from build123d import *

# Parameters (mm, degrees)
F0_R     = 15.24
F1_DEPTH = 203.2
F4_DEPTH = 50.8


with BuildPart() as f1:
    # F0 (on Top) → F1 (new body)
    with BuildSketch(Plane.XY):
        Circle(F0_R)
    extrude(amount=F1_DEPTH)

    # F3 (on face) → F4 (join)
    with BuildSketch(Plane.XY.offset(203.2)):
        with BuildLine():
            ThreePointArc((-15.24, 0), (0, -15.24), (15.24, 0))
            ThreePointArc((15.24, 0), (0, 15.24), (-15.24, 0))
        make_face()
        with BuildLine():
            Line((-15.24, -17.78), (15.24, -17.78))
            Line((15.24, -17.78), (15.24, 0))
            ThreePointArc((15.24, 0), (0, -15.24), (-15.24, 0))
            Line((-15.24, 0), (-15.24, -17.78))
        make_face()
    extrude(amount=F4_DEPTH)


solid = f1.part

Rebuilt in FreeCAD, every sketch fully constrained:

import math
import FreeCAD as App
import Part
import Sketcher
from FreeCAD import Vector
Q = App.Units.Quantity

doc = App.newDocument("Part")
params = doc.addObject("Spreadsheet::Sheet", "Params")
for row, (alias, value) in enumerate([
    ("sketch1_diameter", "1.2 in"),
    ("pad1_length", "8 in"),
    ("sketch2_radius", "0.6 in"),
    ("sketch2_height", "0.7 in"),
    ("pad2_length", "2 in"),
], start=1):
    params.set(f"A{row}", alias)
    params.set(f"B{row}", "=" + value)
    params.setAlias(f"B{row}", alias)

body = doc.addObject("PartDesign::Body", "Body")

# Sketch on XY plane
sketch1 = doc.addObject("Sketcher::SketchObject", "Sketch")
body.addObject(sketch1)
sketch1.AttachmentSupport = (doc.XY_Plane, [""])
sketch1.MapMode = "FlatFace"
sketch1.addGeometry(Part.Circle(Vector(0, 0, 0), Vector(0, 0, 1), 15), False)
sketch1.addConstraint([
    Sketcher.Constraint("Coincident", 0, 3, -1, 1),
    Sketcher.Constraint("Diameter", 0, Q("1.2 in")),
])
sketch1.setExpression("Constraints[1]", "Params.sketch1_diameter")
pad1 = doc.addObject("PartDesign::Pad", "Pad")
body.addObject(pad1)
pad1.Profile = sketch1
pad1.setExpression("Length", "Params.pad1_length")

# Sketch on XY plane
sketch2 = doc.addObject("Sketcher::SketchObject", "Sketch001")
body.addObject(sketch2)
sketch2.AttachmentSupport = (doc.XY_Plane, [""])
sketch2.MapMode = "FlatFace"
sketch2.AttachmentOffset = App.Placement(Vector(0, 0, 8 * 25.4), App.Rotation())
sketch2.addGeometry([
    Part.ArcOfCircle(Part.Circle(Vector(0, 0, 0), Vector(0, 0, 1), 15), math.radians(0), math.radians(180)),
    Part.LineSegment(Vector(-15, 0, 0), Vector(-15, -18, 0)),
    Part.LineSegment(Vector(-15, -18, 0), Vector(15, -18, 0)),
    Part.LineSegment(Vector(15, -18, 0), Vector(15, 0, 0)),
], False)
sketch2.addConstraint([
    Sketcher.Constraint("Tangent", 0, 2, 1, 1),
    Sketcher.Constraint("Coincident", 1, 2, 2, 1),
    Sketcher.Constraint("Coincident", 2, 2, 3, 1),
    Sketcher.Constraint("Tangent", 3, 2, 0, 1),
    Sketcher.Constraint("Vertical", 1),
    Sketcher.Constraint("Horizontal", 2),
    Sketcher.Constraint("Vertical", 3),
    Sketcher.Constraint("Coincident", 0, 3, -1, 1),
    Sketcher.Constraint("Radius", 0, Q("0.6 in")),
    Sketcher.Constraint("DistanceY", 1, 2, 1, 1, Q("0.7 in")),
])
sketch2.setExpression("Constraints[8]", "Params.sketch2_radius")
sketch2.setExpression("Constraints[9]", "Params.sketch2_height")
pad2 = doc.addObject("PartDesign::Pad", "Pad001")
body.addObject(pad2)
pad2.Profile = sketch2
pad2.setExpression("Length", "Params.pad2_length")

doc.recompute()
